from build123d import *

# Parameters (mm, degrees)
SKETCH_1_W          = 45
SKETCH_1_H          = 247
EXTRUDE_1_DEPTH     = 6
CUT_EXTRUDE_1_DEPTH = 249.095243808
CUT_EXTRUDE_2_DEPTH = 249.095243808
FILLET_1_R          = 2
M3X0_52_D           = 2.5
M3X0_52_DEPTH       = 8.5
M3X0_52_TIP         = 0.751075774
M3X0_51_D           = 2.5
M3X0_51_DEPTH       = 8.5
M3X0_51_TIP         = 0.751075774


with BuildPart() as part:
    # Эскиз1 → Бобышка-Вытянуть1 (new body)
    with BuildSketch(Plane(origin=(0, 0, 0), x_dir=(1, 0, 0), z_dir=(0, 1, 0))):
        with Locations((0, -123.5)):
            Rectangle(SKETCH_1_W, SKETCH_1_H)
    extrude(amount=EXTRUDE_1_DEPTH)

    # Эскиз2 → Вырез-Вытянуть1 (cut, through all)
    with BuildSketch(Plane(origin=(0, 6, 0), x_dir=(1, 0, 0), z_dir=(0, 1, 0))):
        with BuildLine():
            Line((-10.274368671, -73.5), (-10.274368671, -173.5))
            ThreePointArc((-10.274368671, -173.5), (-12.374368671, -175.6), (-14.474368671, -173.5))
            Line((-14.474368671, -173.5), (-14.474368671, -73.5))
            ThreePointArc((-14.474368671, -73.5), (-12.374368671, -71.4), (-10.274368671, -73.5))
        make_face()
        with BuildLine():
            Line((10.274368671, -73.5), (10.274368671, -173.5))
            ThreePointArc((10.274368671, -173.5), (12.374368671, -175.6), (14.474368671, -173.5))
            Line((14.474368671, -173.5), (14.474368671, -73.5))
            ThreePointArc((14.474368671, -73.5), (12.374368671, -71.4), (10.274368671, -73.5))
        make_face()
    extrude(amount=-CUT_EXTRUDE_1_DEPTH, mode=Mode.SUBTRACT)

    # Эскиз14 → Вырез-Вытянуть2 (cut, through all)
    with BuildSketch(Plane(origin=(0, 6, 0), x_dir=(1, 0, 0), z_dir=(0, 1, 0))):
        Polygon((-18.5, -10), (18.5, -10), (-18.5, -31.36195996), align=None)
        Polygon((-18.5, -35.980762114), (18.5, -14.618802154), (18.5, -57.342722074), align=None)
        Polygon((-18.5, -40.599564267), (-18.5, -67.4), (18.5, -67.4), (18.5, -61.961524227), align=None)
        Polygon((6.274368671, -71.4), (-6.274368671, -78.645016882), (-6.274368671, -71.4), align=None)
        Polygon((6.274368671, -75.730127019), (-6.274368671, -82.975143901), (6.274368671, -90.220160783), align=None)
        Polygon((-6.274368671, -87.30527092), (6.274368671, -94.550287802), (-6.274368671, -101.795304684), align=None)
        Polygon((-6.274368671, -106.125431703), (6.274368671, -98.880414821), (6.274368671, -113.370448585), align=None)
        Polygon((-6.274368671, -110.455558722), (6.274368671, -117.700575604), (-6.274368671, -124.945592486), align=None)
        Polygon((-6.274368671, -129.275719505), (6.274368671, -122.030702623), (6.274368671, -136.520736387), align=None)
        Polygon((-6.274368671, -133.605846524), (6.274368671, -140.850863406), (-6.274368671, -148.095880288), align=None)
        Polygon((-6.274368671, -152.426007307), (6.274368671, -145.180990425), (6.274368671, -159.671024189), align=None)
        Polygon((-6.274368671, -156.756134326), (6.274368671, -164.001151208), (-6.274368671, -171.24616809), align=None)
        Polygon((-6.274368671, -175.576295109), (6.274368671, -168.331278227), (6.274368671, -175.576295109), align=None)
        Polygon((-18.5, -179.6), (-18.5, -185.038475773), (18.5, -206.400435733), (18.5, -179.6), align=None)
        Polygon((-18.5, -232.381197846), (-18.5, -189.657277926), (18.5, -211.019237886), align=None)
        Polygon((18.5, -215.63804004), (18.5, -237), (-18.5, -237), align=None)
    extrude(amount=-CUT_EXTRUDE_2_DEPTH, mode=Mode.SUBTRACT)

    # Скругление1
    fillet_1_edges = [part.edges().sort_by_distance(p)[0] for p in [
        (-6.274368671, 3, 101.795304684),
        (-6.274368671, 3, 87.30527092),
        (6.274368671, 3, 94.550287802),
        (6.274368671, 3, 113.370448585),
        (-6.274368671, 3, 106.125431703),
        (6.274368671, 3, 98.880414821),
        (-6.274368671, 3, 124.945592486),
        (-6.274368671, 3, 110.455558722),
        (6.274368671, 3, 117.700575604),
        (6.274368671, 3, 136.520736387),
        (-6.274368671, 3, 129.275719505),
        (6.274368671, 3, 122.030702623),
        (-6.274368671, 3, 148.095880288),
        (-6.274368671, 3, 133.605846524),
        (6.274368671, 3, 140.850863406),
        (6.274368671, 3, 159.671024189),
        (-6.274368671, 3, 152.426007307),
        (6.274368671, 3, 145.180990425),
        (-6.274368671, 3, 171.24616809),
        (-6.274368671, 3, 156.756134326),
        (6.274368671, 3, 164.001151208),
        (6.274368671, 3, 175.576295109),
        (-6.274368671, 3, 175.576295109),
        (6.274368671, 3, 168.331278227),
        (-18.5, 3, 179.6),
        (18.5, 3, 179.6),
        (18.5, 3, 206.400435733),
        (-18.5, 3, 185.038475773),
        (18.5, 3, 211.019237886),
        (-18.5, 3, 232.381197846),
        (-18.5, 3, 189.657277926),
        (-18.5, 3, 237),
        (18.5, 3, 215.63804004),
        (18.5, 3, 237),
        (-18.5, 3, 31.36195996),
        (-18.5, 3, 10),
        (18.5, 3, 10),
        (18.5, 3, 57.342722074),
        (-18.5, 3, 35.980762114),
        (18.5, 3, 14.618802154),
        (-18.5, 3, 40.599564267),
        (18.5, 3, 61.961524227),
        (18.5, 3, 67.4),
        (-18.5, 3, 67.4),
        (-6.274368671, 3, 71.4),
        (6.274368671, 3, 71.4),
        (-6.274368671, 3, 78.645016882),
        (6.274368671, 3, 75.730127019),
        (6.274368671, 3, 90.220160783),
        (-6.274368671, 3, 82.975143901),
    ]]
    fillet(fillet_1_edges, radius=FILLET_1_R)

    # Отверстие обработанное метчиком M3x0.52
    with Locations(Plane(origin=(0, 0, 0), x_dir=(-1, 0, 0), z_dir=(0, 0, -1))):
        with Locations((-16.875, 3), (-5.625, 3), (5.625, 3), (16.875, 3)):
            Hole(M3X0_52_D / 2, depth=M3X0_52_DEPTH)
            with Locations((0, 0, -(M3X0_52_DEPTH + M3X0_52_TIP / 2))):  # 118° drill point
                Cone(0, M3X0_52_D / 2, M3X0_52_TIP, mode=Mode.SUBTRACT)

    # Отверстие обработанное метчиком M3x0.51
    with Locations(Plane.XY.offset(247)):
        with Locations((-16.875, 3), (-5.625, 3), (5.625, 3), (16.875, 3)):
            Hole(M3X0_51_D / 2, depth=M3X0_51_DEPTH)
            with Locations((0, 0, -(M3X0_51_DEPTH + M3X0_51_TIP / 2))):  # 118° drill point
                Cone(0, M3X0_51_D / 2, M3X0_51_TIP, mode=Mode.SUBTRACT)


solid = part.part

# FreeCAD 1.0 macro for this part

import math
import FreeCAD as App
import Part
import Sketcher

V = App.Vector
Q = App.Units.Quantity


def edges_at(feature, points):
    """Names of the edges that pass closest to the given points."""
    edges = feature.Shape.Edges
    near = lambda p: min(range(len(edges)), key=lambda i: edges[i].distToShape(Part.Vertex(*p))[0])
    return sorted({f"Edge{near(p) + 1}" for p in points})


def add_polygon(sketch, points):
    """Adds a closed chain of lines whose ends are joined by coincident constraints."""
    first, n = sketch.GeometryCount, len(points)
    for a, b in zip(points, points[1:] + points[:1]):
        sketch.addGeometry(Part.LineSegment(App.Vector(*a, 0), App.Vector(*b, 0)), False)
    for i in range(n):
        sketch.addConstraint(Sketcher.Constraint("Coincident", first + i, 2, first + (i + 1) % n, 1))

doc = App.newDocument("Part")
params = doc.addObject("Spreadsheet::Sheet", "Params")
for row, (alias, value) in enumerate([
    ("sketch1_width", "45 mm"),
    ("sketch1_height", "247 mm"),
    ("pad1_length", "6 mm"),
    ("sketch2_radius", "2.1 mm"),
    ("sketch2_height", "100 mm"),
    ("sketch3_width", "37 mm"),
    ("fillet_radius", "2 mm"),
    ("sketch4_diameter", "2.5 mm"),
    ("hole_diameter", "2.5 mm"),
    ("hole_depth", "8.5 mm"),
    ("sketch5_diameter", "2.5 mm"),
    ("hole2_diameter", "2.5 mm"),
    ("hole2_depth", "8.5 mm"),
], start=1):
    params.set(f"A{row}", alias)
    params.set(f"B{row}", "=" + value)
    params.setAlias(f"B{row}", alias)

body = doc.addObject("PartDesign::Body", "Body")

# Sketch on XZ plane
sketch1 = body.newObject("Sketcher::SketchObject", "Sketch")
sketch1.AttachmentSupport = (doc.getObject("XZ_Plane"), [""])
sketch1.MapMode = "FlatFace"
add_polygon(sketch1, [(-22, 0), (-22, 247), (22, 247), (22, 0)])  # lines 0-3
sketch1.addConstraint([
    Sketcher.Constraint("Vertical", 0),
    Sketcher.Constraint("Horizontal", 1),
    Sketcher.Constraint("Vertical", 2),
    Sketcher.Constraint("Horizontal", 3),
    Sketcher.Constraint("Symmetric", 2, 2, 3, 2, -1, 1),
    Sketcher.Constraint("DistanceX", 1, 1, 1, 2, 45.0),
    Sketcher.Constraint("DistanceY", 0, 1, 0, 2, 247.0),
])
sketch1.setExpression("Constraints[9]", "Params.sketch1_width")
sketch1.setExpression("Constraints[10]", "Params.sketch1_height")
pad1 = body.newObject("PartDesign::Pad", "Pad")
pad1.Profile = sketch1
pad1.setExpression("Length", "Params.pad1_length")
pad1.Reversed = True

# Sketch on XZ plane
sketch2 = body.newObject("Sketcher::SketchObject", "Sketch001")
sketch2.AttachmentSupport = (doc.getObject("XZ_Plane"), [""])
sketch2.MapMode = "FlatFace"
sketch2.AttachmentOffset = App.Placement(V(0, 0, -6), App.Rotation())
sketch2.addGeometry([
    Part.LineSegment(V(-10.3, 173.5, 0), V(-10.3, 73.5, 0)),  # 0
    Part.ArcOfCircle(Part.Circle(V(-12.4, 73.5, 0), V(0, 0, 1), 2.1), math.radians(180), math.radians(360)),  # 1
    Part.LineSegment(V(-14.5, 73.5, 0), V(-14.5, 173.5, 0)),  # 2
    Part.ArcOfCircle(Part.Circle(V(-12.4, 173.5, 0), V(0, 0, 1), 2.1), math.radians(0), math.radians(180)),  # 3
    Part.LineSegment(V(10.3, 73.5, 0), V(10.3, 173.5, 0)),  # 4
    Part.ArcOfCircle(Part.Circle(V(12.4, 173.5, 0), V(0, 0, 1), 2.1), math.radians(0), math.radians(180)),  # 5
    Part.LineSegment(V(14.5, 173.5, 0), V(14.5, 73.5, 0)),  # 6
    Part.ArcOfCircle(Part.Circle(V(12.4, 73.5, 0), V(0, 0, 1), 2.1), math.radians(180), math.radians(360)),  # 7
], False)
sketch2.addConstraint([
    Sketcher.Constraint("Tangent", 0, 2, 1, 2),
    Sketcher.Constraint("Tangent", 1, 1, 2, 1),
    Sketcher.Constraint("Tangent", 2, 2, 3, 2),
    Sketcher.Constraint("Tangent", 3, 1, 0, 1),
    Sketcher.Constraint("Tangent", 4, 2, 5, 2),
    Sketcher.Constraint("Tangent", 5, 1, 6, 1),
    Sketcher.Constraint("Tangent", 6, 2, 7, 2),
    Sketcher.Constraint("Tangent", 7, 1, 4, 1),
    Sketcher.Constraint("Vertical", 0),
    Sketcher.Constraint("Vertical", 2),
    Sketcher.Constraint("Vertical", 4),
    Sketcher.Constraint("Vertical", 6),
    Sketcher.Constraint("Equal", 3, 5),
    Sketcher.Constraint("Symmetric", 3, 3, 5, 3, -2),
    Sketcher.Constraint("Horizontal", 1, 3, 7, 3),
    Sketcher.Constraint("Radius", 1, 2.1),
    Sketcher.Constraint("DistanceY", 0, 2, 0, 1, 100.0),
    Sketcher.Constraint("DistanceY", -1, 1, 1, 3, 73.5),
    Sketcher.Constraint("DistanceX", 1, 3, -1, 1, 12.374369),
])
sketch2.setExpression("Constraints[15]", "Params.sketch2_radius")
sketch2.setExpression("Constraints[16]", "Params.sketch2_height")
pocket1 = body.newObject("PartDesign::Pocket", "Pocket")
pocket1.Profile = sketch2
pocket1.Type = "ThroughAll"
pocket1.Reversed = True

# Sketch on XZ plane
sketch3 = body.newObject("Sketcher::SketchObject", "Sketch002")
sketch3.AttachmentSupport = (doc.getObject("XZ_Plane"), [""])
sketch3.MapMode = "FlatFace"
sketch3.AttachmentOffset = App.Placement(V(0, 0, -6), App.Rotation())
add_polygon(sketch3, [(18, 10), (-18, 10), (-18, 31)])  # lines 0-2
add_polygon(sketch3, [(18, 15), (-18, 36), (18, 57)])  # lines 3-5
add_polygon(sketch3, [(-18, 41), (-18, 67), (18, 67), (18, 62)])  # lines 6-9
add_polygon(sketch3, [(-6, 79), (6, 71), (-6, 71)])  # lines 10-12
add_polygon(sketch3, [(6, 76), (-6, 83), (6, 90)])  # lines 13-15
add_polygon(sketch3, [(6, 95), (-6, 87), (-6, 102)])  # lines 16-18
add_polygon(sketch3, [(6, 99), (-6, 106), (6, 113)])  # lines 19-21
add_polygon(sketch3, [(6, 118), (-6, 110), (-6, 125)])  # lines 22-24
add_polygon(sketch3, [(6, 122), (-6, 129), (6, 137)])  # lines 25-27
add_polygon(sketch3, [(6, 141), (-6, 134), (-6, 148)])  # lines 28-30
add_polygon(sketch3, [(6, 145), (-6, 152), (6, 160)])  # lines 31-33
add_polygon(sketch3, [(6, 164), (-6, 157), (-6, 171)])  # lines 34-36
add_polygon(sketch3, [(6, 168), (-6, 176), (6, 176)])  # lines 37-39
add_polygon(sketch3, [(-18, 180), (-18, 185), (18, 206), (18, 180)])  # lines 40-43
add_polygon(sketch3, [(-18, 190), (-18, 232), (18, 211)])  # lines 44-46
add_polygon(sketch3, [(18, 237), (18, 216), (-18, 237)])  # lines 47-49
sketch3.addConstraint([
    Sketcher.Constraint("Horizontal", 0),
    Sketcher.Constraint("Vertical", 1),
    Sketcher.Constraint("Vertical", 5),
    Sketcher.Constraint("Vertical", 6),
    Sketcher.Constraint("Horizontal", 7),
    Sketcher.Constraint("Vertical", 8),
    Sketcher.Constraint("Horizontal", 11),
    Sketcher.Constraint("Vertical", 12),
    Sketcher.Constraint("Vertical", 15),
    Sketcher.Constraint("Vertical", 17),
    Sketcher.Constraint("Vertical", 21),
    Sketcher.Constraint("Vertical", 23),
    Sketcher.Constraint("Vertical", 27),
    Sketcher.Constraint("Vertical", 29),
    Sketcher.Constraint("Vertical", 33),
    Sketcher.Constraint("Vertical", 35),
    Sketcher.Constraint("Horizontal", 38),
    Sketcher.Constraint("Vertical", 39),
    Sketcher.Constraint("Vertical", 40),
    Sketcher.Constraint("Vertical", 42),
    Sketcher.Constraint("Horizontal", 43),
    Sketcher.Constraint("Vertical", 44),
    Sketcher.Constraint("Vertical", 47),
    Sketcher.Constraint("Horizontal", 49),
    Sketcher.Constraint("Parallel", 2, 3),
    Sketcher.Constraint("Parallel", 4, 9),
    Sketcher.Constraint("Parallel", 3, 10),
    Sketcher.Constraint("Parallel", 10, 13),
    Sketcher.Constraint("Parallel", 9, 14),
    Sketcher.Constraint("Parallel", 14, 16),
    Sketcher.Constraint("Parallel", 13, 18),
    Sketcher.Constraint("Parallel", 18, 19),
    Sketcher.Constraint("Parallel", 16, 20),
    Sketcher.Constraint("Parallel", 20, 22),
    Sketcher.Constraint("Parallel", 19, 24),
    Sketcher.Constraint("Parallel", 24, 25),
    Sketcher.Constraint("Parallel", 22, 26),
    Sketcher.Constraint("Parallel", 26, 28),
    Sketcher.Constraint("Parallel", 25, 30),
    Sketcher.Constraint("Parallel", 30, 31),
    Sketcher.Constraint("Parallel", 28, 32),
    Sketcher.Constraint("Parallel", 32, 34),
    Sketcher.Constraint("Parallel", 31, 36),
    Sketcher.Constraint("Parallel", 36, 37),
    Sketcher.Constraint("Parallel", 34, 41),
    Sketcher.Constraint("Parallel", 37, 45),
    Sketcher.Constraint("Parallel", 41, 46),
    Sketcher.Constraint("Parallel", 45, 48),
    Sketcher.Constraint("Vertical", 1, 2, 3, 2),
    Sketcher.Constraint("Vertical", 2, 2, 4, 2),
    Sketcher.Constraint("Vertical", 3, 2, 6, 2),
    Sketcher.Constraint("Vertical", 5, 2, 7, 2),
    Sketcher.Constraint("Vertical", 12, 2, 13, 2),
    Sketcher.Constraint("Vertical", 10, 2, 14, 2),
    Sketcher.Constraint("Vertical", 13, 2, 16, 2),
    Sketcher.Constraint("Vertical", 15, 2, 18, 2),
    Sketcher.Constraint("Vertical", 17, 2, 19, 2),
    Sketcher.Constraint("Vertical", 18, 2, 20, 2),
    Sketcher.Constraint("Vertical", 19, 2, 22, 2),
    Sketcher.Constraint("Vertical", 21, 2, 24, 2),
    Sketcher.Constraint("Vertical", 23, 2, 25, 2),
    Sketcher.Constraint("Vertical", 24, 2, 26, 2),
    Sketcher.Constraint("Vertical", 25, 2, 28, 2),
    Sketcher.Constraint("Vertical", 27, 2, 30, 2),
    Sketcher.Constraint("Vertical", 29, 2, 31, 2),
    Sketcher.Constraint("Vertical", 30, 2, 32, 2),
    Sketcher.Constraint("Vertical", 31, 2, 34, 2),
    Sketcher.Constraint("Vertical", 33, 2, 36, 2),
    Sketcher.Constraint("Vertical", 35, 2, 37, 2),
    Sketcher.Constraint("Vertical", 36, 2, 38, 2),
    Sketcher.Constraint("Vertical", 9, 2, 40, 2),
    Sketcher.Constraint("Vertical", 8, 2, 41, 2),
    Sketcher.Constraint("Vertical", 43, 2, 44, 2),
    Sketcher.Constraint("Vertical", 42, 2, 45, 2),
    Sketcher.Constraint("Vertical", 45, 2, 47, 2),
    Sketcher.Constraint("Vertical", 46, 2, 48, 2),
    Sketcher.Constraint("Equal", 8, 40),
    Sketcher.Constraint("Equal", 3, 4),
    Sketcher.Constraint("DistanceX", 0, 2, 0, 1, 37.0),
    Sketcher.Constraint("Angle", 2, Q("-30 deg")),
    Sketcher.Constraint("DistanceY", -1, 1, 0, 2, 10.0),
    Sketcher.Constraint("DistanceY", -1, 1, 48, 2, 237.0),
    Sketcher.Constraint("DistanceY", 7, 2, 10, 2, 4.0),
    Sketcher.Constraint("DistanceX", 0, 2, -1, 1, 18.5),
    Sketcher.Constraint("DistanceY", -1, 1, 6, 2, 67.4),
    Sketcher.Constraint("DistanceY", -1, 1, 42, 2, 179.6),
    Sketcher.Constraint("DistanceX", 11, 2, 11, 1, 12.548737),
    Sketcher.Constraint("DistanceY", 6, 1, 6, 2, 26.800436),
    Sketcher.Constraint("DistanceX", -1, 1, 10, 2, 6.274369),
    Sketcher.Constraint("DistanceY", -1, 1, 14, 2, 90.220161),
    Sketcher.Constraint("DistanceY", -1, 1, 16, 2, 87.305271),
    Sketcher.Constraint("DistanceY", -1, 1, 19, 2, 106.125432),
    Sketcher.Constraint("DistanceY", -1, 1, 22, 2, 110.455559),
    Sketcher.Constraint("DistanceY", -1, 1, 25, 2, 129.27572),
    Sketcher.Constraint("DistanceY", -1, 1, 29, 2, 148.09588),
    Sketcher.Constraint("DistanceY", -1, 1, 33, 2, 145.18099),
    Sketcher.Constraint("DistanceY", -1, 1, 35, 2, 171.246168),
    Sketcher.Constraint("DistanceY", -1, 1, 39, 2, 168.331278),
    Sketcher.Constraint("DistanceY", 35, 2, 46, 2, 18.41111),
    Sketcher.Constraint("DistanceY", -1, 1, 3, 2, 35.980762),
])
sketch3.setExpression("Constraints[128]", "Params.sketch3_width")
pocket2 = body.newObject("PartDesign::Pocket", "Pocket001")
pocket2.Profile = sketch3
pocket2.Type = "ThroughAll"
pocket2.Reversed = True
doc.recompute()

fillet = body.newObject("PartDesign::Fillet", "Fillet")
fillet.Base = (pocket2, edges_at(pocket2, [
    (-6.274, 3, 101.795),
    (-6.274, 3, 87.305),
    (6.274, 3, 94.55),
    (6.274, 3, 113.37),
    (-6.274, 3, 106.125),
    (6.274, 3, 98.88),
    (-6.274, 3, 124.946),
    (-6.274, 3, 110.456),
    (6.274, 3, 117.701),
    (6.274, 3, 136.521),
    (-6.274, 3, 129.276),
    (6.274, 3, 122.031),
    (-6.274, 3, 148.096),
    (-6.274, 3, 133.606),
    (6.274, 3, 140.851),
    (6.274, 3, 159.671),
    (-6.274, 3, 152.426),
    (6.274, 3, 145.181),
    (-6.274, 3, 171.246),
    (-6.274, 3, 156.756),
    (6.274, 3, 164.001),
    (6.274, 3, 175.576),
    (-6.274, 3, 175.576),
    (6.274, 3, 168.331),
    (-18.5, 3, 179.6),
    (18.5, 3, 179.6),
    (18.5, 3, 206.4),
    (-18.5, 3, 185.038),
    (18.5, 3, 211.019),
    (-18.5, 3, 232.381),
    (-18.5, 3, 189.657),
    (-18.5, 3, 237),
    (18.5, 3, 215.638),
    (18.5, 3, 237),
    (-18.5, 3, 31.362),
    (-18.5, 3, 10),
    (18.5, 3, 10),
    (18.5, 3, 57.343),
    (-18.5, 3, 35.981),
    (18.5, 3, 14.619),
    (-18.5, 3, 40.6),
    (18.5, 3, 61.962),
    (18.5, 3, 67.4),
    (-18.5, 3, 67.4),
    (-6.274, 3, 71.4),
    (6.274, 3, 71.4),
    (-6.274, 3, 78.645),
    (6.274, 3, 75.73),
    (6.274, 3, 90.22),
    (-6.274, 3, 82.975),
]))
fillet.setExpression("Radius", "Params.fillet_radius")

# Sketch on XY plane
sketch4 = body.newObject("Sketcher::SketchObject", "Sketch003")
sketch4.AttachmentSupport = (doc.getObject("XY_Plane"), [""])
sketch4.MapMode = "FlatFace"
sketch4.addGeometry([
    Part.Circle(V(16.9, 3, 0), V(0, 0, 1), 1.2),
    Part.Circle(V(5.6, 3, 0), V(0, 0, 1), 1.2),
    Part.Circle(V(-5.6, 3, 0), V(0, 0, 1), 1.2),
    Part.Circle(V(-16.9, 3, 0), V(0, 0, 1), 1.2),
], False)
sketch4.addConstraint([
    Sketcher.Constraint("Equal", 0, 1),
    Sketcher.Constraint("Equal", 1, 2),
    Sketcher.Constraint("Equal", 2, 3),
    Sketcher.Constraint("Symmetric", 1, 3, 2, 3, -2),
    Sketcher.Constraint("Symmetric", 0, 3, 3, 3, -2),
    Sketcher.Constraint("Horizontal", 0, 3, 1, 3),
    Sketcher.Constraint("Diameter", 0, 2.5),
    Sketcher.Constraint("DistanceY", -1, 1, 0, 3, 3.0),
    Sketcher.Constraint("DistanceX", 2, 3, 0, 3, 22.5),
    Sketcher.Constraint("DistanceX", 1, 3, 0, 3, 11.25),
])
sketch4.setExpression("Constraints[6]", "Params.sketch4_diameter")
doc.recompute()
hole = body.newObject("PartDesign::Hole", "Hole")
hole.Profile = sketch4
hole.ThreadType = "None"
hole.setExpression("Diameter", "Params.hole_diameter")
hole.DepthType = "Dimension"
hole.setExpression("Depth", "Params.hole_depth")
hole.DrillPoint = "Angled"
hole.DrillPointAngle = 118
hole.Reversed = True

# Sketch on XY plane
sketch5 = body.newObject("Sketcher::SketchObject", "Sketch004")
sketch5.AttachmentSupport = (doc.getObject("XY_Plane"), [""])
sketch5.MapMode = "FlatFace"
sketch5.AttachmentOffset = App.Placement(V(0, 0, 247), App.Rotation())
sketch5.addGeometry([
    Part.Circle(V(-16.9, 3, 0), V(0, 0, 1), 1.2),
    Part.Circle(V(-5.6, 3, 0), V(0, 0, 1), 1.2),
    Part.Circle(V(5.6, 3, 0), V(0, 0, 1), 1.2),
    Part.Circle(V(16.9, 3, 0), V(0, 0, 1), 1.2),
], False)
sketch5.addConstraint([
    Sketcher.Constraint("Equal", 0, 1),
    Sketcher.Constraint("Equal", 1, 2),
    Sketcher.Constraint("Equal", 2, 3),
    Sketcher.Constraint("Symmetric", 1, 3, 2, 3, -2),
    Sketcher.Constraint("Symmetric", 0, 3, 3, 3, -2),
    Sketcher.Constraint("Horizontal", 0, 3, 1, 3),
    Sketcher.Constraint("Diameter", 0, 2.5),
    Sketcher.Constraint("DistanceY", -1, 1, 0, 3, 3.0),
    Sketcher.Constraint("DistanceX", 0, 3, 2, 3, 22.5),
    Sketcher.Constraint("DistanceX", 0, 3, 1, 3, 11.25),
])
sketch5.setExpression("Constraints[6]", "Params.sketch5_diameter")
doc.recompute()
hole2 = body.newObject("PartDesign::Hole", "Hole001")
hole2.Profile = sketch5
hole2.ThreadType = "None"
hole2.setExpression("Diameter", "Params.hole2_diameter")
hole2.DepthType = "Dimension"
hole2.setExpression("Depth", "Params.hole2_depth")
hole2.DrillPoint = "Angled"
hole2.DrillPointAngle = 118

doc.recompute()
